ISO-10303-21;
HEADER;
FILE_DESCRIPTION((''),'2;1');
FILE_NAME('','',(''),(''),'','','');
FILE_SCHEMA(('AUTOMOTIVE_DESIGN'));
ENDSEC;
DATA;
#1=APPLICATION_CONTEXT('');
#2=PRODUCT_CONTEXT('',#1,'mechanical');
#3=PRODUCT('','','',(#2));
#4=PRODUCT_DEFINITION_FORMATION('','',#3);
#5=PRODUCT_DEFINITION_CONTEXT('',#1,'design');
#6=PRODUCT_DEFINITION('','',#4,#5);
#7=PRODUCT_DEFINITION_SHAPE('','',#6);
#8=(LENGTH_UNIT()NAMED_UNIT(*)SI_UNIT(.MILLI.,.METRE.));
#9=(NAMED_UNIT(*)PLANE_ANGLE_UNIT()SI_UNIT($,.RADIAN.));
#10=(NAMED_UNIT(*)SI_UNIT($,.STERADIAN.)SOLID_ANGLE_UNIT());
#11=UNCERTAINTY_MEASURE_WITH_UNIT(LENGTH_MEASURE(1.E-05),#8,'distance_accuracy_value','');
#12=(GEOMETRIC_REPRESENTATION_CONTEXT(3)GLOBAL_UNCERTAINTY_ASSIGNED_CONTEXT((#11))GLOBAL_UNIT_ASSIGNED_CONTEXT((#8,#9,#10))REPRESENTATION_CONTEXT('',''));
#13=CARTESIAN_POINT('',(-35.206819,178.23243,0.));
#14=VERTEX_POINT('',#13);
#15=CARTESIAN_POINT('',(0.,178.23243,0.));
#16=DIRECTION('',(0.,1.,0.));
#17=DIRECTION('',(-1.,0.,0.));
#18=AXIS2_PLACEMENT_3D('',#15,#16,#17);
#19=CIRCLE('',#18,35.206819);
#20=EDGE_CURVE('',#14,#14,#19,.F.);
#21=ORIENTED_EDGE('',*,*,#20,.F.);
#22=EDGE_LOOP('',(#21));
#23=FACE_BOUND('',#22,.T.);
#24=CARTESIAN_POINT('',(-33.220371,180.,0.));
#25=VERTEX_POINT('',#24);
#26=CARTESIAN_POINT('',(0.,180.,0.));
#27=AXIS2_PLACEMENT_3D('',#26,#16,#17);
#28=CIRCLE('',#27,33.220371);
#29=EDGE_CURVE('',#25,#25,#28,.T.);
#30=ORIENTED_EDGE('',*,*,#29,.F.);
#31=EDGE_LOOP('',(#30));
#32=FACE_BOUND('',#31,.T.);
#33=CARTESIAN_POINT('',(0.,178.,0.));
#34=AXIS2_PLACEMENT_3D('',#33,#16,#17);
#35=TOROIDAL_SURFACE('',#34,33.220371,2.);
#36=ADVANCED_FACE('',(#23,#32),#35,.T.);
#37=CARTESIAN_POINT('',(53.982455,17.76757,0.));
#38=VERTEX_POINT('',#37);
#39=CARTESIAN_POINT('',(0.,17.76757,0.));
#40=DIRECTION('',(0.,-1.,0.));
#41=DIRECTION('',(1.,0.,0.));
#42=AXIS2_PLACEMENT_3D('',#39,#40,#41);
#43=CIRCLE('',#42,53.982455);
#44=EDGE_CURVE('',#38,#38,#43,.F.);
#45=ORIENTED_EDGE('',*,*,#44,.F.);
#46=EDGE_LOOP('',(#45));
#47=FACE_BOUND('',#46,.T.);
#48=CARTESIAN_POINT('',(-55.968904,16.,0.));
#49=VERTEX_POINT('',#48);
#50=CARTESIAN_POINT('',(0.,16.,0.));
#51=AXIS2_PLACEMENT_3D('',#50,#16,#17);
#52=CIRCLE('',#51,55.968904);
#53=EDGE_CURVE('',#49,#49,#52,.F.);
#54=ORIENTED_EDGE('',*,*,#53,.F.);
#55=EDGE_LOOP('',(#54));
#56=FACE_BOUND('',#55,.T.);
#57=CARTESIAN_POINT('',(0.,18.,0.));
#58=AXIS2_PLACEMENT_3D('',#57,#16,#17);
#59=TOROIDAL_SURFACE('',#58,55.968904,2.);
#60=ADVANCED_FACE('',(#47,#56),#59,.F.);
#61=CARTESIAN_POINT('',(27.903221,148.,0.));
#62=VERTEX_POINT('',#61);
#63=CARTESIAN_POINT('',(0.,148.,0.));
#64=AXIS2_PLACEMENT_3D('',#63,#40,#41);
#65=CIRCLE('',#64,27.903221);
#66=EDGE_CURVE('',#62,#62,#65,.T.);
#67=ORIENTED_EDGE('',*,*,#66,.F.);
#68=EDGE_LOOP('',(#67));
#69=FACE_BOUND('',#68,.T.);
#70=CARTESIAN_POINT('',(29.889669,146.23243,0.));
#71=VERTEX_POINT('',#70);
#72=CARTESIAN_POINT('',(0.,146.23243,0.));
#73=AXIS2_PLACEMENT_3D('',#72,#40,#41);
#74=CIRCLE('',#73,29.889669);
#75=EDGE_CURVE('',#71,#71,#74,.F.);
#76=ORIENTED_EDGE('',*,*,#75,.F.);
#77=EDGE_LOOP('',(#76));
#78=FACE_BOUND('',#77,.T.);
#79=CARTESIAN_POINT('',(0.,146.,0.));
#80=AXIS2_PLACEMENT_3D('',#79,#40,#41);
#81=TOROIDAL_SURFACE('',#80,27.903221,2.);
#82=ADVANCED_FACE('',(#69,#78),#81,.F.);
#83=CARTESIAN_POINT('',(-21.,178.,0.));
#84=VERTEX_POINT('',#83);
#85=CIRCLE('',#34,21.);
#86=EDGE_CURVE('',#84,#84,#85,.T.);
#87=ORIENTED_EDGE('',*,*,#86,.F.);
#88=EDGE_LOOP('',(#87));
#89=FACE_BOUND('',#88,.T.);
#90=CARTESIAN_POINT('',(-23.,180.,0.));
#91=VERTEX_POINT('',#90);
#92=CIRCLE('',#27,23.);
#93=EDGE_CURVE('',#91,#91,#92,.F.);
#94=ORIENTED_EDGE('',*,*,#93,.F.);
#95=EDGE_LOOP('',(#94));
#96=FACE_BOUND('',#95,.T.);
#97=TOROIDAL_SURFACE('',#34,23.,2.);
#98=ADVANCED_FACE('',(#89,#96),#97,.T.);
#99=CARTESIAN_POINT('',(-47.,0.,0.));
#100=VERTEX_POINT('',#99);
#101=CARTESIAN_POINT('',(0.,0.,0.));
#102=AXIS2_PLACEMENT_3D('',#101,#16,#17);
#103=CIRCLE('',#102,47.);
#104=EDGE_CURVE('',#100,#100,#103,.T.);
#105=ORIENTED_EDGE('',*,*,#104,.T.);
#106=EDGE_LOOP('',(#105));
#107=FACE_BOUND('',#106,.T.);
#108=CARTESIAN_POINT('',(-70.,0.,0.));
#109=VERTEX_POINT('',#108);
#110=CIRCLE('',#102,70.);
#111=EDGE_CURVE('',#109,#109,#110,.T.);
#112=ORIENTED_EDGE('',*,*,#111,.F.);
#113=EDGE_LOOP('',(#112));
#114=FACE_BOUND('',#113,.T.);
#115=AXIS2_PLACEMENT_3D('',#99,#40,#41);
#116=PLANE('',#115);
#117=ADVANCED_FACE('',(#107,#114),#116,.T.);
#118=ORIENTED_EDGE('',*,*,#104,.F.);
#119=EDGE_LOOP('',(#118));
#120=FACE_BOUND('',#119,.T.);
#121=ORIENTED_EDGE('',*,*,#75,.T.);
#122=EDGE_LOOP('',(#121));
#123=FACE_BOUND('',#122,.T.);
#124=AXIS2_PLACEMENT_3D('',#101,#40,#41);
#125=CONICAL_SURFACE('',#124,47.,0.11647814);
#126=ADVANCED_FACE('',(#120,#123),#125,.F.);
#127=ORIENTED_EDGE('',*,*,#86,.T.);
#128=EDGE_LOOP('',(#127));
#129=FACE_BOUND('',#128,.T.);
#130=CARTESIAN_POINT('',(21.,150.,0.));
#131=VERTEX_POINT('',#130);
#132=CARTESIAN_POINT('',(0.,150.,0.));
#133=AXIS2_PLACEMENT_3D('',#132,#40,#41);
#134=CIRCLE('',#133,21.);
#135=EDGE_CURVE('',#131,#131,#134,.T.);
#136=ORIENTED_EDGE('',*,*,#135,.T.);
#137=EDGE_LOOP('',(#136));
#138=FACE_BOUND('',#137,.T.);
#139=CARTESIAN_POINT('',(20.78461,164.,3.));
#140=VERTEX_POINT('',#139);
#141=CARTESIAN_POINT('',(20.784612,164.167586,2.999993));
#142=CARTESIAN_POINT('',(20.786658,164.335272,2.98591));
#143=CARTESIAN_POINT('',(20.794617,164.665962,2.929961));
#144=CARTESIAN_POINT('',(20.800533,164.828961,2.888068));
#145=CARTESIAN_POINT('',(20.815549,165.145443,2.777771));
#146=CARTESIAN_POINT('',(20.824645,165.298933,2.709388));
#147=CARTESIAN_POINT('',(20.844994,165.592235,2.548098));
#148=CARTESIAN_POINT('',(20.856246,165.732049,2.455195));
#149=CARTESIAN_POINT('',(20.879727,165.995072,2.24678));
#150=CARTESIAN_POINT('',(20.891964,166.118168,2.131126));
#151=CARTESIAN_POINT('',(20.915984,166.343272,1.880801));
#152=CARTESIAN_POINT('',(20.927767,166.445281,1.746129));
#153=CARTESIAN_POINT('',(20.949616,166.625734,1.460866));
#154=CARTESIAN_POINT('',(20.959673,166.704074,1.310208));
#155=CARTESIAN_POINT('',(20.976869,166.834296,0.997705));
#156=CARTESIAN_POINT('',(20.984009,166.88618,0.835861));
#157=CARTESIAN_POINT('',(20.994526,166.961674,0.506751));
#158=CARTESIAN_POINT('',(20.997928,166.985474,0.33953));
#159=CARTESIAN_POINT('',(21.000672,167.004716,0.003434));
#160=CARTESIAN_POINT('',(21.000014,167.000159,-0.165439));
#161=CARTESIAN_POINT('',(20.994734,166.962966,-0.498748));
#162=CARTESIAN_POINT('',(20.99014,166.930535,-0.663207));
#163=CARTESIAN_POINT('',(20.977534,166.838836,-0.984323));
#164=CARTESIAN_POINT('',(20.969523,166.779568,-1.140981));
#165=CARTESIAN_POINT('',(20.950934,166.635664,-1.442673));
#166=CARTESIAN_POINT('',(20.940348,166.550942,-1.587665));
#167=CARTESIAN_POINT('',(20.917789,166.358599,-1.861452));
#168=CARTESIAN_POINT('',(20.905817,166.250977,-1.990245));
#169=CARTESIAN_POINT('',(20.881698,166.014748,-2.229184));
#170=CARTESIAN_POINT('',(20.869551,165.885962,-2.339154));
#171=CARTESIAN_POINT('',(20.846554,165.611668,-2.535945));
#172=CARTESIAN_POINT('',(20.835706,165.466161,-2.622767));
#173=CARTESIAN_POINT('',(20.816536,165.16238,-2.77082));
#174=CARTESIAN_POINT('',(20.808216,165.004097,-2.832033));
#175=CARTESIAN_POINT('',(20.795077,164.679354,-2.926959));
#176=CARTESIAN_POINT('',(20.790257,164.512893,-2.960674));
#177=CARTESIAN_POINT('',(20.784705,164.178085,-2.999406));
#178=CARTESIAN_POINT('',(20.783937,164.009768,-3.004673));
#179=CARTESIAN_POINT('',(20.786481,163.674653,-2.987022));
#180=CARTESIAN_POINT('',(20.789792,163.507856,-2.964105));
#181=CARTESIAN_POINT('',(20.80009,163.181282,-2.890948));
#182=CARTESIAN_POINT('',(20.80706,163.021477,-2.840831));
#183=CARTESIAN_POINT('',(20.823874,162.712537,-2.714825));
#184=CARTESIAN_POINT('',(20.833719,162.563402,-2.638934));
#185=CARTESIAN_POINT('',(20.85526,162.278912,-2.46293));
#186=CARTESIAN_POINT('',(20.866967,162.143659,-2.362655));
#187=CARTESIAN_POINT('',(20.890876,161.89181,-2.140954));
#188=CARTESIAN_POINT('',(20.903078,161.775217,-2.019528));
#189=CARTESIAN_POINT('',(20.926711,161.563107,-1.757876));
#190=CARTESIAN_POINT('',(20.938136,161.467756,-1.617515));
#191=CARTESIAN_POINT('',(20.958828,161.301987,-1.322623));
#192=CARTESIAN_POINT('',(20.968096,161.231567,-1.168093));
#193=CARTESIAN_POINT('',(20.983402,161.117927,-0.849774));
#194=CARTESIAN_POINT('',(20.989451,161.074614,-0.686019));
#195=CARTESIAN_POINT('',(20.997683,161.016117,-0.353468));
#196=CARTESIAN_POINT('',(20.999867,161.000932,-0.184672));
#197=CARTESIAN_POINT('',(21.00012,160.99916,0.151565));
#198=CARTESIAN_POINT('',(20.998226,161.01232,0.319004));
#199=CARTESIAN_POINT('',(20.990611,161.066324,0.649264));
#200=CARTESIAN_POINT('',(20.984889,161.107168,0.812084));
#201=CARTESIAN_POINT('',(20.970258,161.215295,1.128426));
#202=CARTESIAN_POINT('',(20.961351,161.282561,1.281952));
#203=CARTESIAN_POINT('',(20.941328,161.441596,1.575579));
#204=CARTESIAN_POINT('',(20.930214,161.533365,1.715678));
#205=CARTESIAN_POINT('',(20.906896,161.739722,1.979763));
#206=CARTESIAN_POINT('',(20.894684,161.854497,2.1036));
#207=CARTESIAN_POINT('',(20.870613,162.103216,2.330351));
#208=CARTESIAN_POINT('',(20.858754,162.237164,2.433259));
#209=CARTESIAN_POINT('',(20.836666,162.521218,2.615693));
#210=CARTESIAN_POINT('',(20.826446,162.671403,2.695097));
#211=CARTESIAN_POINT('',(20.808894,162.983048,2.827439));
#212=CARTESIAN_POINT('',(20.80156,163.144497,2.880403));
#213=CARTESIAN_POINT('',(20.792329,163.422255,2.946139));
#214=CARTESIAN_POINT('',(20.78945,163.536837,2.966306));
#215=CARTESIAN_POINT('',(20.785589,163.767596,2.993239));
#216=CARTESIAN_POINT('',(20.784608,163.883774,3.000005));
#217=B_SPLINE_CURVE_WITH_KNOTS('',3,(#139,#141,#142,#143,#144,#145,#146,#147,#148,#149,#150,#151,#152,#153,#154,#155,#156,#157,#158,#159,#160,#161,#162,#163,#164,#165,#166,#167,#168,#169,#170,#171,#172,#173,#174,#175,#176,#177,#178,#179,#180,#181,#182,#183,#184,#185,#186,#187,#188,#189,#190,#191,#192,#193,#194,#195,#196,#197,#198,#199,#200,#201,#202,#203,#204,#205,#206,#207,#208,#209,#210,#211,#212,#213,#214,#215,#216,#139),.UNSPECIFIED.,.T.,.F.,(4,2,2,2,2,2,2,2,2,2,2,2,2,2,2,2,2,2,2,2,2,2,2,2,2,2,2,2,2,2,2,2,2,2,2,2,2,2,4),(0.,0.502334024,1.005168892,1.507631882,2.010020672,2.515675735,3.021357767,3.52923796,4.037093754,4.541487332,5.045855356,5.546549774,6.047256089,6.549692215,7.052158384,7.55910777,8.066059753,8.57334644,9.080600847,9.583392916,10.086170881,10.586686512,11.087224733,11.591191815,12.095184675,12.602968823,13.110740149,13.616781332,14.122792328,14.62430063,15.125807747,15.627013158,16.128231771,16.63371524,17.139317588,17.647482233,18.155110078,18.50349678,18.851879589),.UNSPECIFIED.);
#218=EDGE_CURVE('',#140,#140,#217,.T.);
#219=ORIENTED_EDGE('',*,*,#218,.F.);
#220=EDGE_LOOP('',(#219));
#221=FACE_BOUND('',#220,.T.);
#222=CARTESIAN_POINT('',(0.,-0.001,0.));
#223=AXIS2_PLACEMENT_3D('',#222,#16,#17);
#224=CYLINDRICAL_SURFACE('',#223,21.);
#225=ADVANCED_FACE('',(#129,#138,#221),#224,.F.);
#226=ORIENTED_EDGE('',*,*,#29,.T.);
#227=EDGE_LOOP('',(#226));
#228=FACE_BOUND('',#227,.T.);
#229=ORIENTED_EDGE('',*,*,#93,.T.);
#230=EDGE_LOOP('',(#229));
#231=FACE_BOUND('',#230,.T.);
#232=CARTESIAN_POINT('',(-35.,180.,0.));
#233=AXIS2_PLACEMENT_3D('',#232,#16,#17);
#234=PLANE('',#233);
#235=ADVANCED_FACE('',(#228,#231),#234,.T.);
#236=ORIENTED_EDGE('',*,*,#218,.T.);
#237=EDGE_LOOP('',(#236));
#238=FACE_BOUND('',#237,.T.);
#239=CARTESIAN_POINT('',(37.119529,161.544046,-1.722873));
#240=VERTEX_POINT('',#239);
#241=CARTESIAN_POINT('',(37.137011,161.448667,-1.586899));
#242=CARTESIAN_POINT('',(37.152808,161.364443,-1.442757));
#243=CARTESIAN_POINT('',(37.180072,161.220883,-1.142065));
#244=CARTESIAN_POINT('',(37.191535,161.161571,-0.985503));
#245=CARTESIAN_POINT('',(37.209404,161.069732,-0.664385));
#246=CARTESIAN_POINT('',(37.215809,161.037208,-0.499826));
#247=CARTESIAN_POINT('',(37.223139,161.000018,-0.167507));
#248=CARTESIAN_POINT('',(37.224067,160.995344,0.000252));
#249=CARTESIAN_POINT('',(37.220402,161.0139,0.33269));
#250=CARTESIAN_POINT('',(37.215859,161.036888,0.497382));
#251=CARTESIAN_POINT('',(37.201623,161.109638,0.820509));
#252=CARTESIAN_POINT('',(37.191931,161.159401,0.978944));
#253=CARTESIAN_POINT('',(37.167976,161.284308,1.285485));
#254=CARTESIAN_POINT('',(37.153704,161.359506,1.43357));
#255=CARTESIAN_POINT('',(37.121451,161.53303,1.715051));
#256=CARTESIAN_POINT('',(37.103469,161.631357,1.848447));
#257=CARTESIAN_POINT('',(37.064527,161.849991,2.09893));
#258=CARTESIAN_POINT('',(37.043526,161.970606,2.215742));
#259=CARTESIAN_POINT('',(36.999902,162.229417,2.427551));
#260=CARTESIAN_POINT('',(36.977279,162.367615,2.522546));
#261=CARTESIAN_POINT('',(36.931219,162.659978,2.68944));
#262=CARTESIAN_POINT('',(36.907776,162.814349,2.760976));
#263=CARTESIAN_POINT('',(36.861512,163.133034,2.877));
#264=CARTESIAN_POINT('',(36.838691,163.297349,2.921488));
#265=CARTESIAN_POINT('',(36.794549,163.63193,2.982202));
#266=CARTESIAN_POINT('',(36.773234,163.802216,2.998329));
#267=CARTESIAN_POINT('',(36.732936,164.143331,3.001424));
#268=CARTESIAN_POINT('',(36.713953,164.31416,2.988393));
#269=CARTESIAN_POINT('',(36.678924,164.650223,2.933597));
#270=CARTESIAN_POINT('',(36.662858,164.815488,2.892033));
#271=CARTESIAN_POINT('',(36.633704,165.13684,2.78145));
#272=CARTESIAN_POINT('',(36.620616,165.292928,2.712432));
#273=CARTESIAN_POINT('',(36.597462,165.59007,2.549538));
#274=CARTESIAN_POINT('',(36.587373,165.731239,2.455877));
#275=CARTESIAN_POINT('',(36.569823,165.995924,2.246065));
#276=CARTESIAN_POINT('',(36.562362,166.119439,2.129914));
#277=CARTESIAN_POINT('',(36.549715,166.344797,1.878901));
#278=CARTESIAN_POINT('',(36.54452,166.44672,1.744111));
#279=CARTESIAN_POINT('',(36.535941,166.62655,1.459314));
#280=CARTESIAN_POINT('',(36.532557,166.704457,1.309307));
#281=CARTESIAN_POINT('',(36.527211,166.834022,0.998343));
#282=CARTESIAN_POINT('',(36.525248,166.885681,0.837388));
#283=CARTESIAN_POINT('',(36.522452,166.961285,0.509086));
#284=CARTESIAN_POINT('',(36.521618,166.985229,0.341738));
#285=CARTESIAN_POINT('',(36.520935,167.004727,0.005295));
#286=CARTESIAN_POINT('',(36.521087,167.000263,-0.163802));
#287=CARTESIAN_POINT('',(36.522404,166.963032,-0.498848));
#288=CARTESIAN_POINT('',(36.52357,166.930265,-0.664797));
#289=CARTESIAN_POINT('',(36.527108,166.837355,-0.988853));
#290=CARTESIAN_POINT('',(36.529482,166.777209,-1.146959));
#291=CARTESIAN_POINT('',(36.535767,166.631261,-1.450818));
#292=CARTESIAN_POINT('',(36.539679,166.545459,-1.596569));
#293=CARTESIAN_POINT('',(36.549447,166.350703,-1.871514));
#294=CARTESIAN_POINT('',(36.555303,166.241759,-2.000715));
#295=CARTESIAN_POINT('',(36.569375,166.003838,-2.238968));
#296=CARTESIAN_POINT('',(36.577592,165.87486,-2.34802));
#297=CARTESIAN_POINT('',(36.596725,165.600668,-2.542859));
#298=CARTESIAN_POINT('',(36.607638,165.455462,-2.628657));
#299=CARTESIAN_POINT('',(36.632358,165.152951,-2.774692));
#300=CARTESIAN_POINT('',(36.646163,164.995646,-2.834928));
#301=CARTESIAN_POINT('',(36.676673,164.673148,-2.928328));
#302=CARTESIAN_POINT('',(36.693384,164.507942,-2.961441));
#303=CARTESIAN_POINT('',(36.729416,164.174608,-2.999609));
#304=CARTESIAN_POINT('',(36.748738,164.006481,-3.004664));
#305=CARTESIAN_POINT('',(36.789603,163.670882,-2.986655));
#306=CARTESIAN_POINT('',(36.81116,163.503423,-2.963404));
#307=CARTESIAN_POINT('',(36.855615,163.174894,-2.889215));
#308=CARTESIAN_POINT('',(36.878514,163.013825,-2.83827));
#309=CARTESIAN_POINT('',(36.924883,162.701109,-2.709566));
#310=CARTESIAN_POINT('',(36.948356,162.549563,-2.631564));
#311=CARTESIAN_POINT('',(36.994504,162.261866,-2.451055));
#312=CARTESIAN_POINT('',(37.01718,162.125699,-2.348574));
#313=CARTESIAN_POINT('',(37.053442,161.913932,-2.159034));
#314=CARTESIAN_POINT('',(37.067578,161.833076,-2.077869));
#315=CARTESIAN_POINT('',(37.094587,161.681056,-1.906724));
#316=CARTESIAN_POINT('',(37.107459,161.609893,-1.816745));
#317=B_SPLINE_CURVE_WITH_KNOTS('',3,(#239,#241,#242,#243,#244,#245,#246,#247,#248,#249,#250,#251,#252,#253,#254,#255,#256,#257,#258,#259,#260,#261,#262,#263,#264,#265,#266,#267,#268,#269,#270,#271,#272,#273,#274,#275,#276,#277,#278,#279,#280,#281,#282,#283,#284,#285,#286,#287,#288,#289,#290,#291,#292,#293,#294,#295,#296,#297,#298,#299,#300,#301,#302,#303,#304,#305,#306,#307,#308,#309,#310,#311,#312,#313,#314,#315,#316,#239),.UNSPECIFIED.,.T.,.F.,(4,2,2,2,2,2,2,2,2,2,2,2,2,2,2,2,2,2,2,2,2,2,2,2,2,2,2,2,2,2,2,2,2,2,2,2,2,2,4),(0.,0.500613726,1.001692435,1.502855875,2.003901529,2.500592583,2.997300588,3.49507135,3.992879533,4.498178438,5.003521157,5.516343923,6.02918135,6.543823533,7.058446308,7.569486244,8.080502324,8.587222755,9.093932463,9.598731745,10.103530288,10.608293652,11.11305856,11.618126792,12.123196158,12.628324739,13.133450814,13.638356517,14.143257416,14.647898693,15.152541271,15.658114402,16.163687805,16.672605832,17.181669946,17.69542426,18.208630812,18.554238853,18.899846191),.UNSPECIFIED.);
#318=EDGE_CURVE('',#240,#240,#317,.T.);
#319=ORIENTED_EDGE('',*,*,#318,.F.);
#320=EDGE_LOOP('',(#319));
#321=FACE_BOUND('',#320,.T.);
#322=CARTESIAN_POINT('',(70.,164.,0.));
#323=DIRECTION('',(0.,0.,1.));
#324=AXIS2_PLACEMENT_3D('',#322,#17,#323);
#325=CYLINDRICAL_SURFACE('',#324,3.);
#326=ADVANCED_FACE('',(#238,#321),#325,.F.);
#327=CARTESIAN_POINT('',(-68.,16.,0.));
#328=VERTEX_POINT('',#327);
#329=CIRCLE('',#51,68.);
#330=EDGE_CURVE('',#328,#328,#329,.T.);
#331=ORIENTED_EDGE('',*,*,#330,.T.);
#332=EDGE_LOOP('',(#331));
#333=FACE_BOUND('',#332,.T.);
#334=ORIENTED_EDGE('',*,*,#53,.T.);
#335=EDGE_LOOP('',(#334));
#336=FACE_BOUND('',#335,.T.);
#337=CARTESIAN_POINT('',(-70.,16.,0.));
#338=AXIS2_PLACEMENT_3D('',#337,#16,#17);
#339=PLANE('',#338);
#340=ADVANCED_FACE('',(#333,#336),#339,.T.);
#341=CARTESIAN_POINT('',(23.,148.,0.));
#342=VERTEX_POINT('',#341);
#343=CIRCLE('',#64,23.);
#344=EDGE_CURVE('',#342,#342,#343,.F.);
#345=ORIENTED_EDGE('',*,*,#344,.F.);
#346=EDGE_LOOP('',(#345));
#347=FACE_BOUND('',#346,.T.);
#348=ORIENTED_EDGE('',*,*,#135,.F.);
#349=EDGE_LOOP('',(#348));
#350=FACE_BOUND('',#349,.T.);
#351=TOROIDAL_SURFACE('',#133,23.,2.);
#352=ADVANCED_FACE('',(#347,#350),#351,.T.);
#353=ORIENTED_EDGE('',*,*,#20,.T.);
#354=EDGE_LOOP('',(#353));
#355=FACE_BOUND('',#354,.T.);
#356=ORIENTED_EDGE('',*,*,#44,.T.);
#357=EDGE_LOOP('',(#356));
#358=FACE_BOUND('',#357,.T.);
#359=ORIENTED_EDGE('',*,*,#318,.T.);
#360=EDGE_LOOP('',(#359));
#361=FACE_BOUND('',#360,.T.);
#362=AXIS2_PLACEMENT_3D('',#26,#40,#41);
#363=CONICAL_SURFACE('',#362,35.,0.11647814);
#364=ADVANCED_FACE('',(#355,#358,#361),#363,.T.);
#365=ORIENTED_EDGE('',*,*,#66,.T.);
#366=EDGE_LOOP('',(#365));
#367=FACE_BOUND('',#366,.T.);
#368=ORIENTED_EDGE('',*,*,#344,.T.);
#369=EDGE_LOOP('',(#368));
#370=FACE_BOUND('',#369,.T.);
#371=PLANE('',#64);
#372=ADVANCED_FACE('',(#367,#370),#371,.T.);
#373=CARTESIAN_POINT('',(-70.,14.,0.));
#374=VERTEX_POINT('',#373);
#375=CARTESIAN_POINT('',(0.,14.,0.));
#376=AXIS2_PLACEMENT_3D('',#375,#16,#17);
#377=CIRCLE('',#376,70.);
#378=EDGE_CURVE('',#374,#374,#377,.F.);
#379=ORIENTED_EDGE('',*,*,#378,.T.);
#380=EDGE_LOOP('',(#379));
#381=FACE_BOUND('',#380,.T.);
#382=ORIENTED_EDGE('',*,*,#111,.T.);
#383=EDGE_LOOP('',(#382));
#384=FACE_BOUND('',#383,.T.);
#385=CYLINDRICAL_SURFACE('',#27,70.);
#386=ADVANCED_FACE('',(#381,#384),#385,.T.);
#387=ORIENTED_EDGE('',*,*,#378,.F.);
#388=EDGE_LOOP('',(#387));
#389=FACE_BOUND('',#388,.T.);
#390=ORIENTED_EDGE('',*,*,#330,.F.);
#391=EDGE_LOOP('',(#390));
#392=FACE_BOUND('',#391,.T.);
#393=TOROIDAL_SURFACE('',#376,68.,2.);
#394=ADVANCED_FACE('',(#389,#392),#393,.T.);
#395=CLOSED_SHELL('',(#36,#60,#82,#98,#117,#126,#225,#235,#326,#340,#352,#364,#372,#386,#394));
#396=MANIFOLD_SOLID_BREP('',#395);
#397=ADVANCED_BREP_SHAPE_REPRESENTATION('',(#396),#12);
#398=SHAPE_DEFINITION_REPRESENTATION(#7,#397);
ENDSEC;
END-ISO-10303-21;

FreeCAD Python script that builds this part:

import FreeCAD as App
import Part
import Sketcher

V = App.Vector
Q = App.Units.Quantity


def edges_at(feature, points):
    """Names of the edges that pass closest to the given points."""
    edges = feature.Shape.Edges
    near = lambda p: min(range(len(edges)), key=lambda i: edges[i].distToShape(Part.Vertex(*p))[0])
    return sorted({f"Edge{near(p) + 1}" for p in points})


def add_polygon(sketch, points):
    """Adds a closed chain of lines whose ends are joined by coincident constraints."""
    first, n = sketch.GeometryCount, len(points)
    for a, b in zip(points, points[1:] + points[:1]):
        sketch.addGeometry(Part.LineSegment(App.Vector(*a, 0), App.Vector(*b, 0)), False)
    for i in range(n):
        sketch.addConstraint(Sketcher.Constraint("Coincident", first + i, 2, first + (i + 1) % n, 1))

doc = App.newDocument("Part")
body = doc.addObject("PartDesign::Body", "Body")

# Sketch on XY plane
sketch1 = body.newObject("Sketcher::SketchObject", "Sketch")
sketch1.AttachmentSupport = (doc.getObject("XY_Plane"), [""])
sketch1.MapMode = "FlatFace"
add_polygon(sketch1, [(0, 148), (0, 180), (-35, 180), (-54, 16), (-70, 16), (-70, 0), (-47, 0), (-30, 148)])  # lines 0-7
sketch1.addConstraint([
    Sketcher.Constraint("Vertical", 0),
    Sketcher.Constraint("Horizontal", 1),
    Sketcher.Constraint("Horizontal", 3),
    Sketcher.Constraint("Vertical", 4),
    Sketcher.Constraint("Horizontal", 5),
    Sketcher.Constraint("Horizontal", 7),
    Sketcher.Constraint("PointOnObject", 0, 2, -2),
    Sketcher.Constraint("PointOnObject", 4, 2, -1),
    Sketcher.Constraint("Parallel", 2, 6),
    Sketcher.Constraint("DistanceX", 1, 2, 1, 1, Q("35 mm")),
    Sketcher.Constraint("DistanceX", 5, 1, 5, 2, Q("23 mm")),
    Sketcher.Constraint("DistanceY", 0, 1, 0, 2, Q("32 mm")),
    Sketcher.Constraint("DistanceY", 4, 2, 4, 1, Q("16 mm")),
    Sketcher.Constraint("DistanceY", -1, 1, 0, 2, Q("180 mm")),
    Sketcher.Constraint("DistanceX", 3, 2, -1, 1, Q("70 mm")),
    Sketcher.Constraint("DistanceX", 7, 1, 7, 2, Q("29.68285 mm")),
])
revolution = body.newObject("PartDesign::Revolution", "Revolution")
revolution.Profile = sketch1
revolution.ReferenceAxis = (sketch1, ["V_Axis"])
revolution.Angle = 360

# Sketch on XZ plane
sketch2 = body.newObject("Sketcher::SketchObject", "Sketch001")
sketch2.AttachmentSupport = (doc.getObject("XZ_Plane"), [""])
sketch2.MapMode = "FlatFace"
sketch2.AttachmentOffset = App.Placement(V(0, 0, -180), App.Rotation())
sketch2.addGeometry(Part.Circle(V(0, 0, 0), V(0, 0, 1), 21), False)
sketch2.addConstraint([
    Sketcher.Constraint("Coincident", 0, 3, -1, 1),
    Sketcher.Constraint("Diameter", 0, Q("42 mm")),
])
pocket1 = body.newObject("PartDesign::Pocket", "Pocket")
pocket1.Profile = sketch2
pocket1.Type = "UpToFirst"
pocket1.Reversed = True

# Sketch on YZ plane
sketch3 = body.newObject("Sketcher::SketchObject", "Sketch002")
sketch3.AttachmentSupport = (doc.getObject("YZ_Plane"), [""])
sketch3.MapMode = "FlatFace"
sketch3.addGeometry(Part.Circle(V(164, 0, 0), V(0, 0, 1), 3), False)
sketch3.addConstraint([
    Sketcher.Constraint("PointOnObject", 0, 3, -1),
    Sketcher.Constraint("Diameter", 0, Q("6 mm")),
    Sketcher.Constraint("DistanceX", -1, 1, 0, 3, Q("164 mm")),
])
pocket2 = body.newObject("PartDesign::Pocket", "Pocket001")
pocket2.Profile = sketch3
pocket2.Type = "ThroughAll"
pocket2.Reversed = True
doc.recompute()

fillet = body.newObject("PartDesign::Fillet", "Fillet")
fillet.Base = (pocket2, edges_at(pocket2, [
    (-21, 148, 0),
    (-21, 180, 0),
    (35, 180, 0),
    (54.189, 16, 0),
    (70, 16, 0),
    (29.683, 148, 0),
]))
fillet.Radius = 2

doc.recompute()
